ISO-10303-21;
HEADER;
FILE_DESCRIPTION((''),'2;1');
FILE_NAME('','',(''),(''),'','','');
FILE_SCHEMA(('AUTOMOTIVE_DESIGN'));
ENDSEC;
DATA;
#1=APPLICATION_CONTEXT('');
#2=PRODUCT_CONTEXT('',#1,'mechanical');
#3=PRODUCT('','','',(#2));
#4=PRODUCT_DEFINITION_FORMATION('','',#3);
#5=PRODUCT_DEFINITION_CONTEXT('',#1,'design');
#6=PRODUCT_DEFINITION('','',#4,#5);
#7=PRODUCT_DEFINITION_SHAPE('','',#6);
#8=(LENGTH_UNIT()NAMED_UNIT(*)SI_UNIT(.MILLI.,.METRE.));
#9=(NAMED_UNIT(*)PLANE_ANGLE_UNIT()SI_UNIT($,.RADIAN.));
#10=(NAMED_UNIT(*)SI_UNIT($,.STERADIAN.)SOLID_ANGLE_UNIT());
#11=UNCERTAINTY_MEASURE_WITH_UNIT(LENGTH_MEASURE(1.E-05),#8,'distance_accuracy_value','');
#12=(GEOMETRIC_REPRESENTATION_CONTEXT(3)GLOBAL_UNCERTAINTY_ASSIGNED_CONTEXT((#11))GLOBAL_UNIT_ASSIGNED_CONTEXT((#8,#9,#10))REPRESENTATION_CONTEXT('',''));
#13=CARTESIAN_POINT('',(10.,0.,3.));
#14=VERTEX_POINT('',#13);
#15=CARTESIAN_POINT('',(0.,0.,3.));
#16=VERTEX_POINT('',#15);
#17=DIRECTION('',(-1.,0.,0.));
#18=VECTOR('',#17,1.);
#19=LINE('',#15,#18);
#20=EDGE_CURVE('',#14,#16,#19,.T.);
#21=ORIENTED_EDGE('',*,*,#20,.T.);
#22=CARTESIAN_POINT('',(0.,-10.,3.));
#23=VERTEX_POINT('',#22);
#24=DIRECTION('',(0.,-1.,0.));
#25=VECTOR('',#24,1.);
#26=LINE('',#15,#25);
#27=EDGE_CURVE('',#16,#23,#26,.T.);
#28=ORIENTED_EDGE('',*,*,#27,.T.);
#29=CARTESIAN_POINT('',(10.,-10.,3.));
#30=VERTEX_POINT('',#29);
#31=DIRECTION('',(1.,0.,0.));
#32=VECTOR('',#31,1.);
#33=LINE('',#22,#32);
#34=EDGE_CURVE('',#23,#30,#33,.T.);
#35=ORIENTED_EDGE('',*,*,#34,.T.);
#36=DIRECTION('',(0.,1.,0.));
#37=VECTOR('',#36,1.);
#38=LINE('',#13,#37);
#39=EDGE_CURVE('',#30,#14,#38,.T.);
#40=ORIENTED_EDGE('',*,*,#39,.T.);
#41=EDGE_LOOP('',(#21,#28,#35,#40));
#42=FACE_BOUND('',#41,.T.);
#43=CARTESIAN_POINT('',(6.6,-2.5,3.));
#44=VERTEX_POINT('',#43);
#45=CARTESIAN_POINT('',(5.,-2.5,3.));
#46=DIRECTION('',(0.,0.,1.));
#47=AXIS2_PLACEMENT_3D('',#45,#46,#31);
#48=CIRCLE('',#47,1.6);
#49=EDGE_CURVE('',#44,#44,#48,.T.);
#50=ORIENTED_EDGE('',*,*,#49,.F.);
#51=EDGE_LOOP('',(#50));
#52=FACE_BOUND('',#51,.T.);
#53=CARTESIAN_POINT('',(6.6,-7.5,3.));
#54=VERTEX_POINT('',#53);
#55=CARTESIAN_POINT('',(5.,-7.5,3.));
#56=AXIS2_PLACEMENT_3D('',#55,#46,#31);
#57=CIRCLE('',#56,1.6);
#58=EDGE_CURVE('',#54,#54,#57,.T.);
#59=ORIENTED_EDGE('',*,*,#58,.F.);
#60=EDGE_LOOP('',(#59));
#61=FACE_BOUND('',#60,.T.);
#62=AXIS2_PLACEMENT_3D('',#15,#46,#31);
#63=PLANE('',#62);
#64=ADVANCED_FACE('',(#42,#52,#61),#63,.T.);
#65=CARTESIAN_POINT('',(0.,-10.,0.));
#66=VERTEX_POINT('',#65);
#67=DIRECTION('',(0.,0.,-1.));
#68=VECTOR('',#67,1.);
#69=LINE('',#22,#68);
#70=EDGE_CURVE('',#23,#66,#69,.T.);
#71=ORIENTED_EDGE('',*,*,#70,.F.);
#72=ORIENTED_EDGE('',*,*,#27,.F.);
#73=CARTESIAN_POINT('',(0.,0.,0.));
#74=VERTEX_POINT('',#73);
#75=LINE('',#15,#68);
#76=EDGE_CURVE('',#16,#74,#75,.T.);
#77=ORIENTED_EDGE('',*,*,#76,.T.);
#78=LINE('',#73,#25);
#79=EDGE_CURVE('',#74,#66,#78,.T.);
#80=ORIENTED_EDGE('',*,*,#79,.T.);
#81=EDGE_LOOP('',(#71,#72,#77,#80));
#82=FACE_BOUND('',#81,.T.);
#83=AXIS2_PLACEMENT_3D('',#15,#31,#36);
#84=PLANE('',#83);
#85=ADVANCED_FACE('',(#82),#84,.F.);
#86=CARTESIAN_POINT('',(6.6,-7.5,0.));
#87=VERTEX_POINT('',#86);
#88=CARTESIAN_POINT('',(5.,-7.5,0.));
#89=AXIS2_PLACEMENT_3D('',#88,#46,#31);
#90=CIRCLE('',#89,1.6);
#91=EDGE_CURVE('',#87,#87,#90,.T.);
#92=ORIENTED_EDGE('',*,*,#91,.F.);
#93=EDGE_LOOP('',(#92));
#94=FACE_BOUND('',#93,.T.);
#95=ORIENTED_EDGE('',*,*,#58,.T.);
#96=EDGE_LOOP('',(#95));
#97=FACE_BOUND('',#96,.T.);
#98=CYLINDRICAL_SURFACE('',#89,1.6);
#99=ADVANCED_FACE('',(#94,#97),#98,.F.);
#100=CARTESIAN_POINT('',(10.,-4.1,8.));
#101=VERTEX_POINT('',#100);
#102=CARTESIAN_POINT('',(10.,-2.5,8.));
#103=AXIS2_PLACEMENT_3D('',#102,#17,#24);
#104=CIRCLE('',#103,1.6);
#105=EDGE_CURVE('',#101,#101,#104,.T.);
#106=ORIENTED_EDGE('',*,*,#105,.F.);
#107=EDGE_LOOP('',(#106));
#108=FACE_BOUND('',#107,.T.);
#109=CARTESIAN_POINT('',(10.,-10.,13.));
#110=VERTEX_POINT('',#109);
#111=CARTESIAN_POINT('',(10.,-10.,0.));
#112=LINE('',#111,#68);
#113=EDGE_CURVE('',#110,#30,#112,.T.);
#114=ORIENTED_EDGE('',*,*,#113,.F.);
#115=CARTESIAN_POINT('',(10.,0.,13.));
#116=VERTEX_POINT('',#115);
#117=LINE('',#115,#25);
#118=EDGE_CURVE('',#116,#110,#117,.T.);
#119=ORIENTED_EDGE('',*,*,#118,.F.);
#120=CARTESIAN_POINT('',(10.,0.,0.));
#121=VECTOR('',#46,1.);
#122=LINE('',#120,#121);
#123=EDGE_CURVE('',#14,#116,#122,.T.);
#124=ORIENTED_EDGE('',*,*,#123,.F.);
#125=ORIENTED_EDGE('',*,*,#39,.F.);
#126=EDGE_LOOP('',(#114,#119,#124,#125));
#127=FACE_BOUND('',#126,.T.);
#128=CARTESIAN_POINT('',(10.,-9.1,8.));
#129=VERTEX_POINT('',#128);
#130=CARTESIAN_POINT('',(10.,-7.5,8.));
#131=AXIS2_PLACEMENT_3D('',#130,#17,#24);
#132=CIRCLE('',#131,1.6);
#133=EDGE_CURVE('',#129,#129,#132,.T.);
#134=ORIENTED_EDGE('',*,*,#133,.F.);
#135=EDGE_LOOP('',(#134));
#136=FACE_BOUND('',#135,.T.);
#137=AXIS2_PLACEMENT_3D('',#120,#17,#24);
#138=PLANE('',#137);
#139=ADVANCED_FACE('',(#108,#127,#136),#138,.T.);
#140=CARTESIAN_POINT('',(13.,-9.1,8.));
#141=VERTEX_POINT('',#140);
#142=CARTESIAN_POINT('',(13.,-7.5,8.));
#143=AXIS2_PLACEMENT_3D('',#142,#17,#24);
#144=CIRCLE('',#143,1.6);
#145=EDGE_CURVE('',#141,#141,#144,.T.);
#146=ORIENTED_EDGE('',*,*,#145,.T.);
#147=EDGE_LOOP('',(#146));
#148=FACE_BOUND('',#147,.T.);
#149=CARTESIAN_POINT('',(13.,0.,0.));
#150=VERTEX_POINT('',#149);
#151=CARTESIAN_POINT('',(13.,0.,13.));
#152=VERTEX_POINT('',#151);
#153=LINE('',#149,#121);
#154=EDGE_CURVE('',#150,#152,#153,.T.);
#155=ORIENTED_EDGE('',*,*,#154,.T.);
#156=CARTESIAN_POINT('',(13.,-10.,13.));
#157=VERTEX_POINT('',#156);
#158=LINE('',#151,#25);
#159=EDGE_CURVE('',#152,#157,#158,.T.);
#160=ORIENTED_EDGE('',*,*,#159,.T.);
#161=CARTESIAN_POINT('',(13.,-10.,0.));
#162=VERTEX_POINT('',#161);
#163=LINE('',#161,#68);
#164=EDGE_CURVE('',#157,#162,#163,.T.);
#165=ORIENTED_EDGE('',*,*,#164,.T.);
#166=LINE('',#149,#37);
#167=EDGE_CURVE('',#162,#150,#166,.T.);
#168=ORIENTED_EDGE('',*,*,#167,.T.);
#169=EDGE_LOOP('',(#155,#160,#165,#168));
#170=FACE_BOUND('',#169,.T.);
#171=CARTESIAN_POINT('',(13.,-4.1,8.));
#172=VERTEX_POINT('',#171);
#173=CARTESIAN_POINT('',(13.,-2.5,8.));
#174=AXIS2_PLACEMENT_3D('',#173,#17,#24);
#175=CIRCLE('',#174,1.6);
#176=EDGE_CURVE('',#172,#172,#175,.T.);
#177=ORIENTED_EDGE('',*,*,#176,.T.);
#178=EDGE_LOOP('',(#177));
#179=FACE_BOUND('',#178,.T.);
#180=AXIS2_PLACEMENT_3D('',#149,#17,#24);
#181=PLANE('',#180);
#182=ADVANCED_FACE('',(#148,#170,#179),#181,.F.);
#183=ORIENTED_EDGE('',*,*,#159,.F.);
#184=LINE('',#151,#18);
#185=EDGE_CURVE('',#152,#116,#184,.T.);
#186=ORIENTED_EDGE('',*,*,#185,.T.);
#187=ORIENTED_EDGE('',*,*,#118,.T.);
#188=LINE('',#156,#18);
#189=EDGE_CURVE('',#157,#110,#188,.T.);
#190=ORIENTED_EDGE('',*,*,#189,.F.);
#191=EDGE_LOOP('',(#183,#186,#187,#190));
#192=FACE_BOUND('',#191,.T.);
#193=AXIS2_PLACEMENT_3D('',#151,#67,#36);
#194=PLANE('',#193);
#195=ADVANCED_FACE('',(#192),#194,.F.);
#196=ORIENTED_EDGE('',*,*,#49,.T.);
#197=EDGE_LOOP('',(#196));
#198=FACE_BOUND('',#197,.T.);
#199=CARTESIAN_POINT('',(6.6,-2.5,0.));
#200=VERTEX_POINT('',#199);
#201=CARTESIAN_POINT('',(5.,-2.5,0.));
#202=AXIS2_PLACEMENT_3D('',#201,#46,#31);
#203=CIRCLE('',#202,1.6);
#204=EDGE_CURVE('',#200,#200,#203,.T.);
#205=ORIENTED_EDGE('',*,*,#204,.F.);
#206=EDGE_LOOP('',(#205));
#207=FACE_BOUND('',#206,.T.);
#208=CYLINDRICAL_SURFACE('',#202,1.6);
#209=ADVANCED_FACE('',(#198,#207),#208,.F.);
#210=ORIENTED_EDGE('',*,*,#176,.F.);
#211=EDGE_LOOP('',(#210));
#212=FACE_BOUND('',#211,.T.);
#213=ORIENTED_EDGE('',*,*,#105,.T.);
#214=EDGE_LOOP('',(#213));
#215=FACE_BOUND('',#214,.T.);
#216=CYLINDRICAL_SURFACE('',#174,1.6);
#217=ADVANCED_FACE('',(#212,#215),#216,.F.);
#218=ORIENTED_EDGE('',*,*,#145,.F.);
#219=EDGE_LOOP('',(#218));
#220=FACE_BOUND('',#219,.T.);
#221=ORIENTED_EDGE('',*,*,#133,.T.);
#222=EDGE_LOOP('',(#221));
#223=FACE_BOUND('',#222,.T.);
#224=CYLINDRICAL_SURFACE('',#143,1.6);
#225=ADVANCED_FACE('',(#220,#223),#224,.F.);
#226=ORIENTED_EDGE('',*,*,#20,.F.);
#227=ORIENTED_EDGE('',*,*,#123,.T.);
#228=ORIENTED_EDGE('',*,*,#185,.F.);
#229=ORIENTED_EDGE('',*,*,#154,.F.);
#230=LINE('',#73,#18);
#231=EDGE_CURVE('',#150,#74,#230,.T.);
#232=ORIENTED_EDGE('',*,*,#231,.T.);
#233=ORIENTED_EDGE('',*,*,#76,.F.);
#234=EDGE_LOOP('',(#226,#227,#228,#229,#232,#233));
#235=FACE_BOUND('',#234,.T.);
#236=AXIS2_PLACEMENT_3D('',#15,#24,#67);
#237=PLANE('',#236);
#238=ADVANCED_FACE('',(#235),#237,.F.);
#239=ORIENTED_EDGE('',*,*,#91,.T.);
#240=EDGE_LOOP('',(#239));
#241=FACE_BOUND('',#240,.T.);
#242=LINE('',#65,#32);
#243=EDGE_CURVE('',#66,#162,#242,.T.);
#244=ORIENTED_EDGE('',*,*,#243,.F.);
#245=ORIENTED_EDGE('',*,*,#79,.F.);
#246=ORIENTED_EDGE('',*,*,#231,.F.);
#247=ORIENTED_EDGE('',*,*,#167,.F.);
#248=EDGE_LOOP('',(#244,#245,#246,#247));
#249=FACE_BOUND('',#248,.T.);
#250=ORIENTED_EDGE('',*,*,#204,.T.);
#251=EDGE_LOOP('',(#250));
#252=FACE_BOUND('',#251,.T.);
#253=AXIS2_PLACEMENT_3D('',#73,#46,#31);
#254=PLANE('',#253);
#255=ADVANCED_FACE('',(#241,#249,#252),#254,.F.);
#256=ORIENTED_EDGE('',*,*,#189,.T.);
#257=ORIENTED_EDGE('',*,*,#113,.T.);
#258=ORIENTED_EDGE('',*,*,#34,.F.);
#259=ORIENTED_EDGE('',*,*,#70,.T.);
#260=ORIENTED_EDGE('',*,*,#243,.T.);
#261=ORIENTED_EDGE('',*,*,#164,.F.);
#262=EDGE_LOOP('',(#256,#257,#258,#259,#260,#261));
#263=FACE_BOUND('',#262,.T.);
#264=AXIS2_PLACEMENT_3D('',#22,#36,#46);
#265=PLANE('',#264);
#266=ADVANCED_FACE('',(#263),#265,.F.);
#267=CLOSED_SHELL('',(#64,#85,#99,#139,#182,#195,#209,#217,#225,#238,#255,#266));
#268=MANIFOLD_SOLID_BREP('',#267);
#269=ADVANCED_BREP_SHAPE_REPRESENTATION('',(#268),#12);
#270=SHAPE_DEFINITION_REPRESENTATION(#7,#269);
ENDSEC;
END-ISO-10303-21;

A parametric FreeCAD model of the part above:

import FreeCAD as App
import Part
import Sketcher
from FreeCAD import Vector
Q = App.Units.Quantity

doc = App.newDocument("Part")
body = doc.addObject("PartDesign::Body", "Body")

# Sketch on XY plane
sketch1 = doc.addObject("Sketcher::SketchObject", "Sketch")
body.addObject(sketch1)
sketch1.AttachmentSupport = (doc.XY_Plane, [""])
sketch1.MapMode = "FlatFace"
sketch1.addGeometry([
    Part.LineSegment(Vector(0, 0, 0), Vector(0, -10, 0)),
    Part.LineSegment(Vector(0, -10, 0), Vector(10, -10, 0)),
    Part.LineSegment(Vector(10, -10, 0), Vector(10, 0, 0)),
    Part.LineSegment(Vector(10, 0, 0), Vector(0, 0, 0)),
], False)
sketch1.addConstraint([
    Sketcher.Constraint("Coincident", 0, 2, 1, 1),
    Sketcher.Constraint("Coincident", 1, 2, 2, 1),
    Sketcher.Constraint("Coincident", 2, 2, 3, 1),
    Sketcher.Constraint("Coincident", 3, 2, 0, 1),
    Sketcher.Constraint("Vertical", 0),
    Sketcher.Constraint("Horizontal", 1),
    Sketcher.Constraint("Vertical", 2),
    Sketcher.Constraint("Horizontal", 3),
    Sketcher.Constraint("Coincident", 3, 2, -1, 1),
    Sketcher.Constraint("Equal", 3, 0),
    Sketcher.Constraint("DistanceX", 1, 1, 1, 2, Q("10 mm")),
])
pad1 = doc.addObject("PartDesign::Pad", "Pad")
body.addObject(pad1)
pad1.Profile = sketch1
pad1.Length = 3

# Sketch on YZ plane
sketch2 = doc.addObject("Sketcher::SketchObject", "Sketch001")
body.addObject(sketch2)
sketch2.AttachmentSupport = (doc.YZ_Plane, [""])
sketch2.MapMode = "FlatFace"
sketch2.AttachmentOffset = App.Placement(Vector(0, 0, 10), App.Rotation())
sketch2.addGeometry([
    Part.LineSegment(Vector(0, 13, 0), Vector(-10, 13, 0)),
    Part.LineSegment(Vector(-10, 13, 0), Vector(-10, 0, 0)),
    Part.LineSegment(Vector(-10, 0, 0), Vector(0, 0, 0)),
    Part.LineSegment(Vector(0, 0, 0), Vector(0, 13, 0)),
], False)
sketch2.addConstraint([
    Sketcher.Constraint("Coincident", 0, 2, 1, 1),
    Sketcher.Constraint("Coincident", 1, 2, 2, 1),
    Sketcher.Constraint("Coincident", 2, 2, 3, 1),
    Sketcher.Constraint("Coincident", 3, 2, 0, 1),
    Sketcher.Constraint("Horizontal", 0),
    Sketcher.Constraint("Vertical", 1),
    Sketcher.Constraint("Horizontal", 2),
    Sketcher.Constraint("Vertical", 3),
    Sketcher.Constraint("Coincident", 2, 2, -1, 1),
    Sketcher.Constraint("DistanceX", 0, 2, 0, 1, Q("10 mm")),
    Sketcher.Constraint("DistanceY", 1, 2, 1, 1, Q("13 mm")),
])
pad2 = doc.addObject("PartDesign::Pad", "Pad001")
body.addObject(pad2)
pad2.Profile = sketch2
pad2.Length = 3

# Sketch on XY plane
sketch3 = doc.addObject("Sketcher::SketchObject", "Sketch002")
body.addObject(sketch3)
sketch3.AttachmentSupport = (doc.XY_Plane, [""])
sketch3.MapMode = "FlatFace"
sketch3.AttachmentOffset = App.Placement(Vector(0, 0, 3), App.Rotation())
sketch3.addGeometry([
    Part.Circle(Vector(5, -2.5, 0), Vector(0, 0, 1), 1.6),
    Part.Circle(Vector(5, -7.5, 0), Vector(0, 0, 1), 1.6),
], False)
sketch3.addConstraint([
    Sketcher.Constraint("Equal", 0, 1),
    Sketcher.Constraint("Vertical", 0, 3, 1, 3),
    Sketcher.Constraint("Diameter", 0, Q("3.2 mm")),
    Sketcher.Constraint("DistanceX", -1, 1, 0, 3, Q("5 mm")),
    Sketcher.Constraint("DistanceY", 1, 3, 0, 3, Q("5 mm")),
    Sketcher.Constraint("DistanceY", 0, 3, -1, 1, Q("2.5 mm")),
])
pocket1 = doc.addObject("PartDesign::Pocket", "Pocket")
body.addObject(pocket1)
pocket1.Profile = sketch3
pocket1.Type = "ThroughAll"

# Sketch on YZ plane
sketch4 = doc.addObject("Sketcher::SketchObject", "Sketch003")
body.addObject(sketch4)
sketch4.AttachmentSupport = (doc.YZ_Plane, [""])
sketch4.MapMode = "FlatFace"
sketch4.AttachmentOffset = App.Placement(Vector(0, 0, 10), App.Rotation())
sketch4.addGeometry([
    Part.Circle(Vector(-2.5, 8, 0), Vector(0, 0, 1), 1.6),
    Part.Circle(Vector(-7.5, 8, 0), Vector(0, 0, 1), 1.6),
], False)
sketch4.addConstraint([
    Sketcher.Constraint("Equal", 0, 1),
    Sketcher.Constraint("Horizontal", 0, 3, 1, 3),
    Sketcher.Constraint("Diameter", 0, Q("3.2 mm")),
    Sketcher.Constraint("DistanceY", -1, 1, 0, 3, Q("8 mm")),
    Sketcher.Constraint("DistanceX", 1, 3, 0, 3, Q("5 mm")),
    Sketcher.Constraint("DistanceX", 0, 3, -1, 1, Q("2.5 mm")),
])
pocket2 = doc.addObject("PartDesign::Pocket", "Pocket001")
body.addObject(pocket2)
pocket2.Profile = sketch4
pocket2.Type = "ThroughAll"
pocket2.Reversed = True

doc.recompute()
